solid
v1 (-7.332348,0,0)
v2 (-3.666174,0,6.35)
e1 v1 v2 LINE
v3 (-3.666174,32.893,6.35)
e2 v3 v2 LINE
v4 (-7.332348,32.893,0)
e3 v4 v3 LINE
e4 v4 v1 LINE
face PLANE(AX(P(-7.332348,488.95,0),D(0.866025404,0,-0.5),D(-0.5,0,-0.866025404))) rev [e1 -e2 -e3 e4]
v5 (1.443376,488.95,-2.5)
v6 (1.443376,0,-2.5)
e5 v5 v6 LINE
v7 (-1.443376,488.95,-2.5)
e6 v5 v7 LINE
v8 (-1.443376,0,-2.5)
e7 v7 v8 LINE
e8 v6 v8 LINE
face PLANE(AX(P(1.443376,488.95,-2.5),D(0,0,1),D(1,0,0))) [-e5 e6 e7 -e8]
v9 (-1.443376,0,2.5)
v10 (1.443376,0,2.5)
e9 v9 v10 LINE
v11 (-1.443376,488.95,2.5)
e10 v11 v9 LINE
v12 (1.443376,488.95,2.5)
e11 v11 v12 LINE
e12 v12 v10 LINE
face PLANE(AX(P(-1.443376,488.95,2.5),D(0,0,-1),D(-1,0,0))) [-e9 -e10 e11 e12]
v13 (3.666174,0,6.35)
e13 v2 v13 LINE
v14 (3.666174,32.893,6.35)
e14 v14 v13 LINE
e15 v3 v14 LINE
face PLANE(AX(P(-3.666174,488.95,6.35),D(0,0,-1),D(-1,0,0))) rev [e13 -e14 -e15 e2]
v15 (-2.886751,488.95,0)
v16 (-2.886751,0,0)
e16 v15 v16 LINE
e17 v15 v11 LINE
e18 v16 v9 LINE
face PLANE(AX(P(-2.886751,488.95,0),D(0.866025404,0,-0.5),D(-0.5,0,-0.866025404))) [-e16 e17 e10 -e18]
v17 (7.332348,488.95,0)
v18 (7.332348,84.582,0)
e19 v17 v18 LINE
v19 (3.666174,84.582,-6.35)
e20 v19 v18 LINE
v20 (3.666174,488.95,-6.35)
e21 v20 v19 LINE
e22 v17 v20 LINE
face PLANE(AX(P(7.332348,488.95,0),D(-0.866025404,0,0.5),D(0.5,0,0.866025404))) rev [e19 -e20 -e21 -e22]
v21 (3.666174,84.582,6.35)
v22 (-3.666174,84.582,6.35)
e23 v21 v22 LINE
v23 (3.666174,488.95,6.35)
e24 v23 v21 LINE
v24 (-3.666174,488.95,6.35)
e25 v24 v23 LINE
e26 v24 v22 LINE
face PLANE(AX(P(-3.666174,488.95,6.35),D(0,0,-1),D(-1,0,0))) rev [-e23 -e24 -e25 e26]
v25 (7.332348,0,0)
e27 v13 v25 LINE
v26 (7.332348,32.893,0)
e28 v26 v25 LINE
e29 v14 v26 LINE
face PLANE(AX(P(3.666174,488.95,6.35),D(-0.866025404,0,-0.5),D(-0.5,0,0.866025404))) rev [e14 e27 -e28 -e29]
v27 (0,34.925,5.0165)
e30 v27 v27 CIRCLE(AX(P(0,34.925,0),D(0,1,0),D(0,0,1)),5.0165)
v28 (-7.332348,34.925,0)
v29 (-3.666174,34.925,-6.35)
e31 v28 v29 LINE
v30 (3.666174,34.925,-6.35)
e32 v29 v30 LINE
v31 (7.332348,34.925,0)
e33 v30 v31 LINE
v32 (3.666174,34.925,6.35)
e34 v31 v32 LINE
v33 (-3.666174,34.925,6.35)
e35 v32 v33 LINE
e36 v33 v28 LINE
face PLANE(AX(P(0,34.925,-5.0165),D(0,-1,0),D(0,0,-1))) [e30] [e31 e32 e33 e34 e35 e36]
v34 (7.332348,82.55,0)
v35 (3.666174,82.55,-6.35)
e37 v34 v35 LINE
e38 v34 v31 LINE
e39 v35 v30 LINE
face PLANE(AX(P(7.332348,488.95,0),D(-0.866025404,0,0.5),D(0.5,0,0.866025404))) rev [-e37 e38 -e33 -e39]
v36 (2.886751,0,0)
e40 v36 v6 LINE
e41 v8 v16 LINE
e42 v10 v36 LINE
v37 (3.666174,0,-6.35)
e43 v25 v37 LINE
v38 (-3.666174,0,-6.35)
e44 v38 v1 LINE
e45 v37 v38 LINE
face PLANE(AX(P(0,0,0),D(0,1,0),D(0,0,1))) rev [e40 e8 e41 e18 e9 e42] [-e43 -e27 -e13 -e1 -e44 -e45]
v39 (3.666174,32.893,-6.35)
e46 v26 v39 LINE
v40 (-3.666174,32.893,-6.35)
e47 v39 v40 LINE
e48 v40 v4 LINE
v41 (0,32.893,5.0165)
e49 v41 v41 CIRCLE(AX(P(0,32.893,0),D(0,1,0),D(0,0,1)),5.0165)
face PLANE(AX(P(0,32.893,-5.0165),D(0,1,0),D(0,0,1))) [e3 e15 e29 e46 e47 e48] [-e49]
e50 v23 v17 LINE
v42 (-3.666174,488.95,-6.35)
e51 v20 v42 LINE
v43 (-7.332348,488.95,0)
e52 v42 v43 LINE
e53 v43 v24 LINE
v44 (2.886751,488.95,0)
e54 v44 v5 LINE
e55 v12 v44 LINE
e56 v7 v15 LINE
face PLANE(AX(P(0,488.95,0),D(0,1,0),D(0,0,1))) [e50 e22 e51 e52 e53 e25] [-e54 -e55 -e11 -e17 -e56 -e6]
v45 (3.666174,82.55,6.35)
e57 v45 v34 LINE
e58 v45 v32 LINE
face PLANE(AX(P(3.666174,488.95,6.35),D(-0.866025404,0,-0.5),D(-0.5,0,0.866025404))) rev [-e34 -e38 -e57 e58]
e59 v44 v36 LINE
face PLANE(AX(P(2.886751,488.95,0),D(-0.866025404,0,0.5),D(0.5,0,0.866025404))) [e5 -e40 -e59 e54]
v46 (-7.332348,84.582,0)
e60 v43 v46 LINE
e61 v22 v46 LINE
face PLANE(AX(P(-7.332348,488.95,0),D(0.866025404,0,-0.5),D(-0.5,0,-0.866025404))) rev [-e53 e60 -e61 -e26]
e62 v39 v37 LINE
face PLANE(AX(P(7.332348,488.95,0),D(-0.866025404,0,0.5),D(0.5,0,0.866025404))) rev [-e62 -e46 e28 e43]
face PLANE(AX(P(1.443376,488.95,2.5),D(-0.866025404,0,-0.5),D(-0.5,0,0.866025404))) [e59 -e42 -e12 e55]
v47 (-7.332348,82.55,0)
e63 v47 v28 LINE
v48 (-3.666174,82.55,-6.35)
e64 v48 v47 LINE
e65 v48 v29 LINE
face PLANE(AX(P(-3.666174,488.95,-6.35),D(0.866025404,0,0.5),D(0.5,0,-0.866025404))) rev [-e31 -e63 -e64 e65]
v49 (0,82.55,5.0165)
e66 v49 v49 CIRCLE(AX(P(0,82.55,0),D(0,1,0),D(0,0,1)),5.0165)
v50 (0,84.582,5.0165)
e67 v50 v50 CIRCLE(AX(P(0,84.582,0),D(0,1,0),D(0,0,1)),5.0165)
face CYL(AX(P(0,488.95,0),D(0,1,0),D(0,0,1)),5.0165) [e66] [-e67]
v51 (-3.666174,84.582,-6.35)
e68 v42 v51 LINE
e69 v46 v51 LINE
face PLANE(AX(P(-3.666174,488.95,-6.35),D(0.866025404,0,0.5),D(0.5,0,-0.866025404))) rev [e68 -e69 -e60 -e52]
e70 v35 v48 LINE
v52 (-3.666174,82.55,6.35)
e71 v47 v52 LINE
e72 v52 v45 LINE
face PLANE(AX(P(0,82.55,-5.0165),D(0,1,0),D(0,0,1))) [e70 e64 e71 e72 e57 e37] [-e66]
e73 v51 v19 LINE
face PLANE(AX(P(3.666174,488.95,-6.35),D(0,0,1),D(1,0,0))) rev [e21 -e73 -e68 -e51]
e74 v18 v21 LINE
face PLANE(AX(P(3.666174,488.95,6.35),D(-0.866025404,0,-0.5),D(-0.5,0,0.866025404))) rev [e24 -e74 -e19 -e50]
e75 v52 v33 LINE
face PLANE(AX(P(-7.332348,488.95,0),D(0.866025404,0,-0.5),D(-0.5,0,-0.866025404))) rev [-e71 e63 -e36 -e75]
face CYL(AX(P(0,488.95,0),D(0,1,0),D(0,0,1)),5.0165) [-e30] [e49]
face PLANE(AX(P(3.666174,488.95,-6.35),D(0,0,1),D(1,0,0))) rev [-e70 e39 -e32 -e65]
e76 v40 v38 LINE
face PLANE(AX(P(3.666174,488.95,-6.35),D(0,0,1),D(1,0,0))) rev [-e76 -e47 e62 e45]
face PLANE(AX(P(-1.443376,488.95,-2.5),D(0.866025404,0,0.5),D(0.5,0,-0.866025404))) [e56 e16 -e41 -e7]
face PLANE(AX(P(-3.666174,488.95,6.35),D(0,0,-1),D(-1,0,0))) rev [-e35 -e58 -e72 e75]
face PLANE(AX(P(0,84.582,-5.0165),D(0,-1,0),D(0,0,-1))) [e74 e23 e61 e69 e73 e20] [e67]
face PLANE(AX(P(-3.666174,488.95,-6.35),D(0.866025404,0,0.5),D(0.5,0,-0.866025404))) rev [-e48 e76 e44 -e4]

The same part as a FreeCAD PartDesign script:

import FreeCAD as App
import Part
import Sketcher
from FreeCAD import Vector
Q = App.Units.Quantity


def add_polygon(sketch, points):
    """Adds a closed chain of lines whose ends are joined by coincident constraints."""
    first, n = sketch.GeometryCount, len(points)
    for a, b in zip(points, points[1:] + points[:1]):
        sketch.addGeometry(Part.LineSegment(App.Vector(*a, 0), App.Vector(*b, 0)), False)
    for i in range(n):
        sketch.addConstraint(Sketcher.Constraint("Coincident", first + i, 2, first + (i + 1) % n, 1))

doc = App.newDocument("Part")
body = doc.addObject("PartDesign::Body", "Body")

sketch1 = doc.addObject("Sketcher::SketchObject", "Sketch")
body.addObject(sketch1)
sketch1.AttachmentSupport = (doc.XZ_Plane, [""])
sketch1.MapMode = "FlatFace"
add_polygon(sketch1, [(7.3, 0), (3.7, -6.3), (-3.7, -6.3), (-7.3, 0), (-3.7, 6.3), (3.7, 6.3)])
add_polygon(sketch1, [(-1.4, -2.5), (1.4, -2.5), (2.9, 0), (1.4, 2.5), (-1.4, 2.5), (-2.9, 0)])
sketch1.addConstraint(Sketcher.Constraint("Horizontal", 1))
sketch1.addConstraint(Sketcher.Constraint("Horizontal", 4))
sketch1.addConstraint(Sketcher.Constraint("Horizontal", 6))
sketch1.addConstraint(Sketcher.Constraint("Horizontal", 9))
sketch1.addConstraint(Sketcher.Constraint("Symmetric", 0, 2, 3, 2, -1, 1))
sketch1.addConstraint(Sketcher.Constraint("Symmetric", 2, 2, 5, 2, -1, 1))
sketch1.addConstraint(Sketcher.Constraint("Symmetric", 6, 2, 9, 2, -1, 1))
sketch1.addConstraint(Sketcher.Constraint("Symmetric", 7, 2, 10, 2, -1, 1))
sketch1.addConstraint(Sketcher.Constraint("PointOnObject", 2, 2, -1))
sketch1.addConstraint(Sketcher.Constraint("PointOnObject", 7, 2, -1))
sketch1.addConstraint(Sketcher.Constraint("Parallel", 2, 5))
sketch1.addConstraint(Sketcher.Constraint("Parallel", 3, 7))
sketch1.addConstraint(Sketcher.Constraint("Parallel", 5, 8))
sketch1.addConstraint(Sketcher.Constraint("Parallel", 8, 11))
sketch1.addConstraint(Sketcher.Constraint("Vertical", 1, 2, 3, 2))
sketch1.addConstraint(Sketcher.Constraint("Angle", 0, Q("-120 deg")))
sketch1.addConstraint(Sketcher.Constraint("DistanceY", 1, 2, 3, 2, Q("0.5 in")))
sketch1.addConstraint(Sketcher.Constraint("DistanceX", 1, 2, 1, 1, Q("7.332348 mm")))
sketch1.addConstraint(Sketcher.Constraint("DistanceX", 6, 1, 6, 2, Q("2.886751 mm")))
sketch1.addConstraint(Sketcher.Constraint("DistanceY", 6, 2, -1, 1, Q("2.5 mm")))
pad1 = doc.addObject("PartDesign::Pad", "Pad")
body.addObject(pad1)
pad1.Profile = sketch1
pad1.Length = Q("19.25 in")
pad1.Reversed = True

sketch2 = doc.addObject("Sketcher::SketchObject", "Sketch001")
body.addObject(sketch2)
sketch2.AttachmentSupport = (doc.YZ_Plane, [""])
sketch2.MapMode = "FlatFace"
add_polygon(sketch2, [(84.6, -5), (82.5, -5), (82.5, -7.6), (84.6, -7.6)])
add_polygon(sketch2, [(34.9, -5), (32.9, -5), (32.9, -7.6), (34.9, -7.6)])
sketch2.addConstraint(Sketcher.Constraint("Horizontal", 0))
sketch2.addConstraint(Sketcher.Constraint("Vertical", 1))
sketch2.addConstraint(Sketcher.Constraint("Horizontal", 2))
sketch2.addConstraint(Sketcher.Constraint("Vertical", 3))
sketch2.addConstraint(Sketcher.Constraint("Horizontal", 4))
sketch2.addConstraint(Sketcher.Constraint("Vertical", 5))
sketch2.addConstraint(Sketcher.Constraint("Horizontal", 6))
sketch2.addConstraint(Sketcher.Constraint("Vertical", 7))
sketch2.addConstraint(Sketcher.Constraint("Horizontal", 3, 2, 4, 2))
sketch2.addConstraint(Sketcher.Constraint("Horizontal", 2, 2, 5, 2))
sketch2.addConstraint(Sketcher.Constraint("Equal", 2, 4))
sketch2.addConstraint(Sketcher.Constraint("DistanceY", 1, 2, 1, 1, Q("0.1 in")))
sketch2.addConstraint(Sketcher.Constraint("DistanceX", 0, 2, 0, 1, Q("0.08 in")))
sketch2.addConstraint(Sketcher.Constraint("DistanceX", -1, 1, 0, 2, Q("3.25 in")))
sketch2.addConstraint(Sketcher.Constraint("DistanceX", -1, 1, 4, 2, Q("1.295 in")))
sketch2.addConstraint(Sketcher.Constraint("DistanceY", 0, 2, -1, 1, Q("0.1975 in")))
groove = doc.addObject("PartDesign::Groove", "Groove")
body.addObject(groove)
groove.Profile = sketch2
groove.ReferenceAxis = (sketch2, ["H_Axis"])
groove.Angle = 360

doc.recompute()
